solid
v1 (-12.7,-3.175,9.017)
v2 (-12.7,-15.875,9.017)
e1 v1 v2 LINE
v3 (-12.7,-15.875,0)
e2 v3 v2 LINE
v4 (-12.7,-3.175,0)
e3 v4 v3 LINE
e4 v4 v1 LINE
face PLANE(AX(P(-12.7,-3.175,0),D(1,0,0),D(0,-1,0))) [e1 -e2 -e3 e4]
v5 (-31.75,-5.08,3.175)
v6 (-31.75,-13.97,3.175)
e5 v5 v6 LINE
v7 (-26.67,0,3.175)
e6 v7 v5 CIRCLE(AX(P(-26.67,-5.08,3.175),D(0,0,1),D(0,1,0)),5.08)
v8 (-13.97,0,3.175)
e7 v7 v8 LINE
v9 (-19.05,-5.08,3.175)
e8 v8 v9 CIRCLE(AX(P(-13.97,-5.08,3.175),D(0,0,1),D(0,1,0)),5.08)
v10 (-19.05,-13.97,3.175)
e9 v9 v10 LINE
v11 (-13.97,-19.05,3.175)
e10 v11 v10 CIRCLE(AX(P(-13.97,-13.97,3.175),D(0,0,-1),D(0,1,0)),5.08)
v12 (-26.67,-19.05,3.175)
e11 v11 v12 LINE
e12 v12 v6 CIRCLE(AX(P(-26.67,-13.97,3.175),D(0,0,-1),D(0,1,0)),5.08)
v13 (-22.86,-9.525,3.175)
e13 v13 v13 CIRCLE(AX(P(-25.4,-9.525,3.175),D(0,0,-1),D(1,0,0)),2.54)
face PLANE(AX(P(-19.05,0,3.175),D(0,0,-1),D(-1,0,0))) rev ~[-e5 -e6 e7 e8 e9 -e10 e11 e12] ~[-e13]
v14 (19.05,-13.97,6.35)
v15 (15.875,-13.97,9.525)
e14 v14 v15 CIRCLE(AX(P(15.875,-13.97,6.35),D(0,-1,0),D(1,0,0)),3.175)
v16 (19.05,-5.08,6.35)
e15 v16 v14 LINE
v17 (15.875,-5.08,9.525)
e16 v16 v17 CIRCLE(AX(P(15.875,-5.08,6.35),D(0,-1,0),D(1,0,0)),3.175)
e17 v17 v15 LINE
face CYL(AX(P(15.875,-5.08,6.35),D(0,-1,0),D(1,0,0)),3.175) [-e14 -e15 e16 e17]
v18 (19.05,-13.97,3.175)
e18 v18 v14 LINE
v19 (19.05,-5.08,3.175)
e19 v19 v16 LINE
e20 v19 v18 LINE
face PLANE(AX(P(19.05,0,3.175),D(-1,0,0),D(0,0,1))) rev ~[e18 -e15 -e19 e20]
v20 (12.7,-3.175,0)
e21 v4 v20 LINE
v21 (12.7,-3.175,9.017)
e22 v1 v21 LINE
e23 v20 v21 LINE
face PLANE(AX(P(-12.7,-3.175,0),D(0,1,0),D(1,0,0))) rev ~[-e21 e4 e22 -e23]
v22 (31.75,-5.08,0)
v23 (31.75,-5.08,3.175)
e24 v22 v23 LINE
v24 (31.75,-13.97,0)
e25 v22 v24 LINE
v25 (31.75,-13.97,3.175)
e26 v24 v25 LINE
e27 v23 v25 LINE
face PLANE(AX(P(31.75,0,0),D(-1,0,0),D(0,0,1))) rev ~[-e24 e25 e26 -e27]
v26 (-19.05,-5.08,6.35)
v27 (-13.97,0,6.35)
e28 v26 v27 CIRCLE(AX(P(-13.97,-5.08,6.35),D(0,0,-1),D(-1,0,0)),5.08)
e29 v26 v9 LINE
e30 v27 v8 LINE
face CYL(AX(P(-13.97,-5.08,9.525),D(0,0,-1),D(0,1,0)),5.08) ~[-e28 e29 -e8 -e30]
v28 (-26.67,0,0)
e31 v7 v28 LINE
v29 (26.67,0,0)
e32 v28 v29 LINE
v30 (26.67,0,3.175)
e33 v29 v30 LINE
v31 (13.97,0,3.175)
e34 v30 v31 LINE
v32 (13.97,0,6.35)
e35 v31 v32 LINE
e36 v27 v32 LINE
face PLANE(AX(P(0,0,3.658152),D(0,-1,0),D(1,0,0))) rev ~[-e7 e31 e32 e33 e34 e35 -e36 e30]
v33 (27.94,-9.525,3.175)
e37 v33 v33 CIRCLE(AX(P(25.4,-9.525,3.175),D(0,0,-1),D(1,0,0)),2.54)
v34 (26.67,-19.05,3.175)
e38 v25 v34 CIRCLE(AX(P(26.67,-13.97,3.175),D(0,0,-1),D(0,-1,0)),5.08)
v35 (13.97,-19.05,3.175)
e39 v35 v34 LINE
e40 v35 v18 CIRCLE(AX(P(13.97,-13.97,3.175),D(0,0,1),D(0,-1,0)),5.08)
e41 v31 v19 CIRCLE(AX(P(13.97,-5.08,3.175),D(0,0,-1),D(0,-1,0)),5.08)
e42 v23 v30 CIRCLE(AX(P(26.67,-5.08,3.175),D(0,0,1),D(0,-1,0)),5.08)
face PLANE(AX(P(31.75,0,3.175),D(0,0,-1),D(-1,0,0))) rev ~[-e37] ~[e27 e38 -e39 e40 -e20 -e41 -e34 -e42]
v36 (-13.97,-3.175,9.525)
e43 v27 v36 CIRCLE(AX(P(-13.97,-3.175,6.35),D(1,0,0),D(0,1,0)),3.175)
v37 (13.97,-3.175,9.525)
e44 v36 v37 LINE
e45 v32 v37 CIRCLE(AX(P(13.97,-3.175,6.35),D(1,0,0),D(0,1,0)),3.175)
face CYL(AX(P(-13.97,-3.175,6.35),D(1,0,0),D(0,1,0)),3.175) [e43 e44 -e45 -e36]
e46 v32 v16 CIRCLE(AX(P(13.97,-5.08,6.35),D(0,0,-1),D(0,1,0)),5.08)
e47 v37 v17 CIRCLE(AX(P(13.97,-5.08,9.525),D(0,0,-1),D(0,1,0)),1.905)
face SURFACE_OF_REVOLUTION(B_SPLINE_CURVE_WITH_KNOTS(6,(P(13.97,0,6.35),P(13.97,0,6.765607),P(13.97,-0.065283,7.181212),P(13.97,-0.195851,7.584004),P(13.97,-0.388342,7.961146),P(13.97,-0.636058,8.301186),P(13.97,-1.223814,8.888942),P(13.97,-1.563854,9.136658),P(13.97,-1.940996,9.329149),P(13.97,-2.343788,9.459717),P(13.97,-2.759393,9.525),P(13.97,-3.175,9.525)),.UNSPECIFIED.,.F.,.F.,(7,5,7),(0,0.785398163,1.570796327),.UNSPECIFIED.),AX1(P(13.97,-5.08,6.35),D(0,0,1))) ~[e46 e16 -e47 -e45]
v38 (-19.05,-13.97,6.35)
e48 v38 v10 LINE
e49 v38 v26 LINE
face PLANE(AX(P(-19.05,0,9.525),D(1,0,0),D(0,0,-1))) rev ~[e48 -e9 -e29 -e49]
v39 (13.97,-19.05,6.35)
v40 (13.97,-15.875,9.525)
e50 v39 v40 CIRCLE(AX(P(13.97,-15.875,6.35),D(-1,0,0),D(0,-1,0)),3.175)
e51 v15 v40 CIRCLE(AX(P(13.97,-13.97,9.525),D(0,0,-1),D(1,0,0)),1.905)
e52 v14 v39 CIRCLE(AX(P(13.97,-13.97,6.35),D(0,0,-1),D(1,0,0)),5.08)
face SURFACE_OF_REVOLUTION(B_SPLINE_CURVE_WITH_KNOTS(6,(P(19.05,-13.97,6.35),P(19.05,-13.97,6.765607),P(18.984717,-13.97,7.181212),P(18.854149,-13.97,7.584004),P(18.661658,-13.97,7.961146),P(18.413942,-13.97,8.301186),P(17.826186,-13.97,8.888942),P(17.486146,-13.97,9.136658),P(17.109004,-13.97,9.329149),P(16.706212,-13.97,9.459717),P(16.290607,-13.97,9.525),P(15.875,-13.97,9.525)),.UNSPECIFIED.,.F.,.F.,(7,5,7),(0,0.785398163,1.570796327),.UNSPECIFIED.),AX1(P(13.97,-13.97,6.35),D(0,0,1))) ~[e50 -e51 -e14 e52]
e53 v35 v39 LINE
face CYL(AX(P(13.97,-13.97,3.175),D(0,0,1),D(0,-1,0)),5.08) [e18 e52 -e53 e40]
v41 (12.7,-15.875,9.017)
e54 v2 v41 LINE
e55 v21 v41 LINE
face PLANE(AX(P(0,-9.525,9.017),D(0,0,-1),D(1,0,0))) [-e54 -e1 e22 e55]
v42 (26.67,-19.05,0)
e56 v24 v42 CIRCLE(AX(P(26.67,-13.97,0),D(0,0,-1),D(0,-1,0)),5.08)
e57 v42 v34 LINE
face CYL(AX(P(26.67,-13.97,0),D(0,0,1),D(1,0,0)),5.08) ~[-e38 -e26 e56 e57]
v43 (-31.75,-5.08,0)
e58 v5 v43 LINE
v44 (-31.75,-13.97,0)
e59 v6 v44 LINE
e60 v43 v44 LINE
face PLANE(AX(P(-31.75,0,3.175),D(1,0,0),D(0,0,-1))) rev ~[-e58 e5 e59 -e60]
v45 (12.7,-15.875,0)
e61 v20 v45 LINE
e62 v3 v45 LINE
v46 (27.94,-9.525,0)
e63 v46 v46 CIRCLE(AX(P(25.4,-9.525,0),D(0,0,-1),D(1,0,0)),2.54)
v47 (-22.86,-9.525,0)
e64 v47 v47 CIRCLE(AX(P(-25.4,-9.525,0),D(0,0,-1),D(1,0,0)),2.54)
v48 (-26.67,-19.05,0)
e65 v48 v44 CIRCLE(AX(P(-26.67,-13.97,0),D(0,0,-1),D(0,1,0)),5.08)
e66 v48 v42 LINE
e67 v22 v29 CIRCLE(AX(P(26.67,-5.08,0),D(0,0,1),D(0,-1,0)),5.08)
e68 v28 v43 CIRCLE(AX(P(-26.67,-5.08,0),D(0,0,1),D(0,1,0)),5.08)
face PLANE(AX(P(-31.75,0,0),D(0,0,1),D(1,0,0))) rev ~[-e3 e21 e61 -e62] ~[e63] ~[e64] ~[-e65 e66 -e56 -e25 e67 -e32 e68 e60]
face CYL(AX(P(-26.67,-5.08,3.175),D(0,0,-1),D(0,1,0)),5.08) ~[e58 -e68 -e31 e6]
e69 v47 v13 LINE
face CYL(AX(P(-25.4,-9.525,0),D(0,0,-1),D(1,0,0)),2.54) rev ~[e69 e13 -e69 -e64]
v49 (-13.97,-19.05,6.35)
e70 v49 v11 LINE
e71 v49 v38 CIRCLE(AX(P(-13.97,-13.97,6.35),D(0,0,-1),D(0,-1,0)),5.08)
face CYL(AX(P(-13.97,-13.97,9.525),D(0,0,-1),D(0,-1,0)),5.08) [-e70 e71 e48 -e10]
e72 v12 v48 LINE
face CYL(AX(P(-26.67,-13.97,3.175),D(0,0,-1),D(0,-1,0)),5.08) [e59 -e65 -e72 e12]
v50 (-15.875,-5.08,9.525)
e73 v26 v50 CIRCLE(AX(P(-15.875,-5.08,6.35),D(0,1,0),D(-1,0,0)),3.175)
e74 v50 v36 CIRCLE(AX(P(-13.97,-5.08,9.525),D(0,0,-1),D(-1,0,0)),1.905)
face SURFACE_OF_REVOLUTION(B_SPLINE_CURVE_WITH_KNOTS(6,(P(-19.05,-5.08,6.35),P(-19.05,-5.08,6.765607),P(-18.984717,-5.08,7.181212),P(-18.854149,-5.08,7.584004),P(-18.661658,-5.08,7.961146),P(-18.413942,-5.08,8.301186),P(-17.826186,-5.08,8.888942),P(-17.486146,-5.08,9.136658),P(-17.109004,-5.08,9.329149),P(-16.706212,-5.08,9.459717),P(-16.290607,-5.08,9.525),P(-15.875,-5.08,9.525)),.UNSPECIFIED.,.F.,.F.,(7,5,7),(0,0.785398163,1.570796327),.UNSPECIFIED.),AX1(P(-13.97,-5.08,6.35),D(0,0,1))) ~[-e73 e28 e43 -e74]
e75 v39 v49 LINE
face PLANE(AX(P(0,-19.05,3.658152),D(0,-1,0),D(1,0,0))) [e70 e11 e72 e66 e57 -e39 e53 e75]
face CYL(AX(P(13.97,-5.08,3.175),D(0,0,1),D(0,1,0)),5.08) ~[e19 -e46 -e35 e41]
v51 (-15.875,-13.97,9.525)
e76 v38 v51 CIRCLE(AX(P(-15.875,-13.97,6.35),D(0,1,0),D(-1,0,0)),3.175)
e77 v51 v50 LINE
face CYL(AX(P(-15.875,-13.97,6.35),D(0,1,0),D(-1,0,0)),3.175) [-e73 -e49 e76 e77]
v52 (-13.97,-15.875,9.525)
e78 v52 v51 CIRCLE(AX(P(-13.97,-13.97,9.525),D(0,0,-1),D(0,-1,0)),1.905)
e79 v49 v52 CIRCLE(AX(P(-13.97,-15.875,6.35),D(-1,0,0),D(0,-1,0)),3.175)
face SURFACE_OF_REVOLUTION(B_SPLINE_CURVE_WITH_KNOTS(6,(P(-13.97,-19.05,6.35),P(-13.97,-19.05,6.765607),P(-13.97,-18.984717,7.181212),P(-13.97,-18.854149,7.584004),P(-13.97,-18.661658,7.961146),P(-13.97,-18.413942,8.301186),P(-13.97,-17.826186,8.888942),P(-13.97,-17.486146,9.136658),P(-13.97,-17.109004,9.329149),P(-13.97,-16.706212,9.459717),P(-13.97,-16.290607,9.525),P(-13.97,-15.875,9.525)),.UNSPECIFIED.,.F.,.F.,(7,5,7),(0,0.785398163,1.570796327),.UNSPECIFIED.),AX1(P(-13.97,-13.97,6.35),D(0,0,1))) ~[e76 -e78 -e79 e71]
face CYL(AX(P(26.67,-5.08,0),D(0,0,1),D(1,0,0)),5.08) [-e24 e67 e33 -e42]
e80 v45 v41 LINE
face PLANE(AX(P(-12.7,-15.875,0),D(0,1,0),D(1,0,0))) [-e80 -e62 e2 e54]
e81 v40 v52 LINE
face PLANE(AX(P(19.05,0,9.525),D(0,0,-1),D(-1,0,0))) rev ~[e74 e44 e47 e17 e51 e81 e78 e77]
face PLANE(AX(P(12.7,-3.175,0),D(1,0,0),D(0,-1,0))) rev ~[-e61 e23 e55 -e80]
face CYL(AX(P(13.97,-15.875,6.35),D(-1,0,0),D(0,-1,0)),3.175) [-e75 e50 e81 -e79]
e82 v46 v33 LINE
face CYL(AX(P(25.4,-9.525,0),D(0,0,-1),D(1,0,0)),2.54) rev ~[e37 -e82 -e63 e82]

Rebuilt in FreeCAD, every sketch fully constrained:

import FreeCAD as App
import Part
import Sketcher
Q = App.Units.Quantity


def edges_at(feature, points):
    """Names of the edges that pass closest to the given points."""
    edges = feature.Shape.Edges
    near = lambda p: min(range(len(edges)), key=lambda i: edges[i].distToShape(Part.Vertex(*p))[0])
    return sorted({f"Edge{near(p) + 1}" for p in points})

doc = App.newDocument("Part")
body = doc.addObject("PartDesign::Body", "Body")

# Sketch on XZ plane
sketch1 = body.newObject("Sketcher::SketchObject", "Sketch")
sketch1.AttachmentSupport = (doc.getObject("XZ_Plane"), [""])
sketch1.MapMode = "FlatFace"
sketch1.addGeometry([
    Part.LineSegment(App.Vector(31.8, 0, 0), App.Vector(31.8, 3.2, 0)),  # 0
    Part.LineSegment(App.Vector(31.8, 3.2, 0), App.Vector(19.1, 3.2, 0)),  # 1
    Part.LineSegment(App.Vector(19.1, 3.2, 0), App.Vector(19.1, 9.5, 0)),  # 2
    Part.LineSegment(App.Vector(19.1, 9.5, 0), App.Vector(-19.1, 9.5, 0)),  # 3
    Part.LineSegment(App.Vector(-19.1, 9.5, 0), App.Vector(-19.1, 3.2, 0)),  # 4
    Part.LineSegment(App.Vector(-19.1, 3.2, 0), App.Vector(-31.8, 3.2, 0)),  # 5
    Part.LineSegment(App.Vector(-31.8, 3.2, 0), App.Vector(-31.8, 0, 0)),  # 6
    Part.LineSegment(App.Vector(-31.8, 0, 0), App.Vector(31.8, 0, 0)),  # 7
], False)
sketch1.addConstraint([
    Sketcher.Constraint("Coincident", 0, 2, 1, 1),
    Sketcher.Constraint("Coincident", 1, 2, 2, 1),
    Sketcher.Constraint("Coincident", 2, 2, 3, 1),
    Sketcher.Constraint("Coincident", 3, 2, 4, 1),
    Sketcher.Constraint("Coincident", 4, 2, 5, 1),
    Sketcher.Constraint("Coincident", 5, 2, 6, 1),
    Sketcher.Constraint("Coincident", 6, 2, 7, 1),
    Sketcher.Constraint("Coincident", 7, 2, 0, 1),
    Sketcher.Constraint("Vertical", 0),
    Sketcher.Constraint("Horizontal", 1),
    Sketcher.Constraint("Vertical", 2),
    Sketcher.Constraint("Horizontal", 3),
    Sketcher.Constraint("Vertical", 4),
    Sketcher.Constraint("Horizontal", 5),
    Sketcher.Constraint("Vertical", 6),
    Sketcher.Constraint("Horizontal", 7),
    Sketcher.Constraint("Symmetric", 6, 2, 7, 2, -1, 1),
    Sketcher.Constraint("Symmetric", 1, 2, 4, 2, -2),
    Sketcher.Constraint("DistanceX", 1, 2, 1, 1, Q("0.5 in")),
    Sketcher.Constraint("DistanceX", 3, 2, 3, 1, Q("1.5 in")),
    Sketcher.Constraint("DistanceY", 2, 1, 2, 2, Q("0.25 in")),
    Sketcher.Constraint("DistanceY", 0, 1, 0, 2, Q("0.125 in")),
])
pad1 = body.newObject("PartDesign::Pad", "Pad")
pad1.Profile = sketch1
pad1.Length = Q("0.75 in")

# Sketch on XY plane
sketch2 = body.newObject("Sketcher::SketchObject", "Sketch001")
sketch2.AttachmentSupport = (doc.getObject("XY_Plane"), [""])
sketch2.MapMode = "FlatFace"
sketch2.addGeometry([
    Part.Circle(App.Vector(-25.4, -9.5, 0), App.Vector(0, 0, 1), 2.5),
    Part.Circle(App.Vector(25.4, -9.5, 0), App.Vector(0, 0, 1), 2.5),
], False)
sketch2.addConstraint([
    Sketcher.Constraint("Equal", 0, 1),
    Sketcher.Constraint("Symmetric", 0, 3, 1, 3, -2),
    Sketcher.Constraint("Diameter", 0, Q("0.2 in")),
    Sketcher.Constraint("DistanceX", 0, 3, -1, 1, Q("1 in")),
    Sketcher.Constraint("DistanceY", 0, 3, -1, 1, Q("0.375 in")),
])
pocket1 = body.newObject("PartDesign::Pocket", "Pocket")
pocket1.Profile = sketch2
pocket1.Length = Q("1 in")
pocket1.Reversed = True
doc.recompute()

fillet = body.newObject("PartDesign::Fillet", "Fillet")
fillet.Base = (pocket1, edges_at(pocket1, [
    (-31.75, -19.05, 1.587),
    (31.75, -19.05, 1.587),
    (31.75, 0, 1.587),
    (-31.75, 0, 1.587),
    (19.05, 0, 6.35),
    (-19.05, 0, 6.35),
    (19.05, -19.05, 6.35),
    (-19.05, -19.05, 6.35),
]))
fillet.Radius = Q("0.2 in")
doc.recompute()

fillet2 = body.newObject("PartDesign::Fillet", "Fillet001")
fillet2.Base = (fillet, edges_at(fillet, [(-17.562, -17.562, 9.525)]))
fillet2.Radius = Q("0.125 in")

# Sketch on XY plane
sketch3 = body.newObject("Sketcher::SketchObject", "Sketch002")
sketch3.AttachmentSupport = (doc.getObject("XY_Plane"), [""])
sketch3.MapMode = "FlatFace"
sketch3.addGeometry([
    Part.LineSegment(App.Vector(-13, -16, 0), App.Vector(-13, -3, 0)),
    Part.LineSegment(App.Vector(-13, -3, 0), App.Vector(13, -3, 0)),
    Part.LineSegment(App.Vector(13, -3, 0), App.Vector(13, -16, 0)),
    Part.LineSegment(App.Vector(13, -16, 0), App.Vector(-13, -16, 0)),
], False)
sketch3.addConstraint([
    Sketcher.Constraint("Coincident", 0, 2, 1, 1),
    Sketcher.Constraint("Coincident", 1, 2, 2, 1),
    Sketcher.Constraint("Coincident", 2, 2, 3, 1),
    Sketcher.Constraint("Coincident", 3, 2, 0, 1),
    Sketcher.Constraint("Vertical", 0),
    Sketcher.Constraint("Horizontal", 1),
    Sketcher.Constraint("Vertical", 2),
    Sketcher.Constraint("Horizontal", 3),
    Sketcher.Constraint("DistanceX", 1, 1, 1, 2, Q("1 in")),
    Sketcher.Constraint("DistanceY", 0, 1, 0, 2, Q("0.5 in")),
    Sketcher.Constraint("DistanceX", 0, 2, -1, 1, Q("0.5 in")),
    Sketcher.Constraint("DistanceY", 0, 2, -1, 1, Q("0.125 in")),
])
pocket2 = body.newObject("PartDesign::Pocket", "Pocket001")
pocket2.Profile = sketch3
pocket2.Length = Q("0.355 in")
pocket2.Reversed = True

doc.recompute()
